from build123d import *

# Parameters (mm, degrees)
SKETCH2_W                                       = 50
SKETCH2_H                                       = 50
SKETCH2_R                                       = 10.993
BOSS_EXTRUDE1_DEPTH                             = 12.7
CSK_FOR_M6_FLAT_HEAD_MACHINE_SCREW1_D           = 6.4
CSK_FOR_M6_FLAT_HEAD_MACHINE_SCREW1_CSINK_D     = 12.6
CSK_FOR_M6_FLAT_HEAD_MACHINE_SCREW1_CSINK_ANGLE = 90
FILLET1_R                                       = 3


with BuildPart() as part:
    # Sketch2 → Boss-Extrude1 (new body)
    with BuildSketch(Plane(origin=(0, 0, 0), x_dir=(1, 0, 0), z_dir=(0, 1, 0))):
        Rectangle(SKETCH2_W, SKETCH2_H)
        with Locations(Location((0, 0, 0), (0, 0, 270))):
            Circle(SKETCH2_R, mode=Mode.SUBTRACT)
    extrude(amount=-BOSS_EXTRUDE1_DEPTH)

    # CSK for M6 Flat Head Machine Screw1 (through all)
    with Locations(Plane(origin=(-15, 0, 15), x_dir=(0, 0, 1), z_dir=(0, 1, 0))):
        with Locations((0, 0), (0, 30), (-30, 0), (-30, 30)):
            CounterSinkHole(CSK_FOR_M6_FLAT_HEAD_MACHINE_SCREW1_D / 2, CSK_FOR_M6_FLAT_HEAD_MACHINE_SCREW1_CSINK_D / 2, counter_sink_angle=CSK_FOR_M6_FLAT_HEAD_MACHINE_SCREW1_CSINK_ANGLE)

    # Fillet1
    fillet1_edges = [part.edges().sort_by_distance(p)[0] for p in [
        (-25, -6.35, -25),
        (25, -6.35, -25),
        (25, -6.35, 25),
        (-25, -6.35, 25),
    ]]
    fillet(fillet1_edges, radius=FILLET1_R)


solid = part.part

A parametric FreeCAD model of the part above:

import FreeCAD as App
import Part
import Sketcher
from FreeCAD import Vector
Q = App.Units.Quantity


def edges_at(feature, points):
    """Names of the edges that pass closest to the given points."""
    edges = feature.Shape.Edges
    near = lambda p: min(range(len(edges)), key=lambda i: edges[i].distToShape(Part.Vertex(*p))[0])
    return sorted({f"Edge{near(p) + 1}" for p in points})


def add_polygon(sketch, points):
    """Adds a closed chain of lines whose ends are joined by coincident constraints."""
    first, n = sketch.GeometryCount, len(points)
    for a, b in zip(points, points[1:] + points[:1]):
        sketch.addGeometry(Part.LineSegment(App.Vector(*a, 0), App.Vector(*b, 0)), False)
    for i in range(n):
        sketch.addConstraint(Sketcher.Constraint("Coincident", first + i, 2, first + (i + 1) % n, 1))

doc = App.newDocument("Part")
params = doc.addObject("Spreadsheet::Sheet", "Params")
for row, (alias, value) in enumerate([
    ("sketch1_width", "50 mm"),
    ("pad1_length", "12.7 mm"),
    ("sketch2_diameter", "6.4 mm"),
    ("hole_diameter", "6.4 mm"),
    ("hole_csink_diameter", "12.6 mm"),
    ("fillet_radius", "3 mm"),
], start=1):
    params.set(f"A{row}", alias)
    params.set(f"B{row}", "=" + value)
    params.setAlias(f"B{row}", alias)

body = doc.addObject("PartDesign::Body", "Body")

# Sketch on XZ plane
sketch1 = body.newObject("Sketcher::SketchObject", "Sketch")
sketch1.AttachmentSupport = (doc.getObject("XZ_Plane"), [""])
sketch1.MapMode = "FlatFace"
add_polygon(sketch1, [(-25, -25), (-25, 25), (25, 25), (25, -25)])  # lines 0-3
sketch1.addGeometry(Part.Circle(Vector(0, 0, 0), Vector(0, 0, 1), 10.993), False)  # 4
sketch1.addConstraint(Sketcher.Constraint("Vertical", 0))
sketch1.addConstraint(Sketcher.Constraint("Horizontal", 1))
sketch1.addConstraint(Sketcher.Constraint("Vertical", 2))
sketch1.addConstraint(Sketcher.Constraint("Horizontal", 3))
sketch1.addConstraint(Sketcher.Constraint("Coincident", 4, 3, -1, 1))
sketch1.addConstraint(Sketcher.Constraint("Symmetric", 0, 2, 2, 2, -1, 1))
sketch1.addConstraint(Sketcher.Constraint("Equal", 3, 0))
sketch1.addConstraint(Sketcher.Constraint("DistanceX", 1, 1, 1, 2, Q("50 mm")))
sketch1.addConstraint(Sketcher.Constraint("Diameter", 4, Q("21.986 mm")))
sketch1.setExpression("Constraints[11]", "Params.sketch1_width")
pad1 = body.newObject("PartDesign::Pad", "Pad")
pad1.Profile = sketch1
pad1.setExpression("Length", "Params.pad1_length")

# Sketch on XZ plane
sketch2 = body.newObject("Sketcher::SketchObject", "Sketch001")
sketch2.AttachmentSupport = (doc.getObject("XZ_Plane"), [""])
sketch2.MapMode = "FlatFace"
sketch2.addGeometry(Part.Circle(Vector(-15, 15, 0), Vector(0, 0, 1), 3.2), False)
sketch2.addGeometry(Part.Circle(Vector(15, 15, 0), Vector(0, 0, 1), 3.2), False)
sketch2.addGeometry(Part.Circle(Vector(-15, -15, 0), Vector(0, 0, 1), 3.2), False)
sketch2.addGeometry(Part.Circle(Vector(15, -15, 0), Vector(0, 0, 1), 3.2), False)
sketch2.addConstraint(Sketcher.Constraint("Equal", 0, 1))
sketch2.addConstraint(Sketcher.Constraint("Equal", 1, 2))
sketch2.addConstraint(Sketcher.Constraint("Equal", 2, 3))
sketch2.addConstraint(Sketcher.Constraint("Symmetric", 1, 3, 2, 3, -1, 1))
sketch2.addConstraint(Sketcher.Constraint("Symmetric", 0, 3, 3, 3, -1, 1))
sketch2.addConstraint(Sketcher.Constraint("Symmetric", 0, 3, 1, 3, -2))
sketch2.addConstraint(Sketcher.Constraint("Diameter", 0, Q("6.4 mm")))
sketch2.addConstraint(Sketcher.Constraint("DistanceX", 0, 3, -1, 1, Q("15 mm")))
sketch2.addConstraint(Sketcher.Constraint("DistanceY", -1, 1, 0, 3, Q("15 mm")))
sketch2.setExpression("Constraints[6]", "Params.sketch2_diameter")
doc.recompute()
hole = body.newObject("PartDesign::Hole", "Hole")
hole.Profile = sketch2
hole.ThreadType = "None"
hole.setExpression("Diameter", "Params.hole_diameter")
hole.DepthType = "ThroughAll"
hole.HoleCutType = "Countersink"
hole.setExpression("HoleCutDiameter", "Params.hole_csink_diameter")
hole.HoleCutCountersinkAngle = 90
hole.Reversed = True
doc.recompute()

fillet = body.newObject("PartDesign::Fillet", "Fillet")
fillet.Base = (hole, edges_at(hole, [
    (-25, -6.35, -25),
    (25, -6.35, -25),
    (25, -6.35, 25),
    (-25, -6.35, 25),
]))
fillet.setExpression("Radius", "Params.fillet_radius")

doc.recompute()
